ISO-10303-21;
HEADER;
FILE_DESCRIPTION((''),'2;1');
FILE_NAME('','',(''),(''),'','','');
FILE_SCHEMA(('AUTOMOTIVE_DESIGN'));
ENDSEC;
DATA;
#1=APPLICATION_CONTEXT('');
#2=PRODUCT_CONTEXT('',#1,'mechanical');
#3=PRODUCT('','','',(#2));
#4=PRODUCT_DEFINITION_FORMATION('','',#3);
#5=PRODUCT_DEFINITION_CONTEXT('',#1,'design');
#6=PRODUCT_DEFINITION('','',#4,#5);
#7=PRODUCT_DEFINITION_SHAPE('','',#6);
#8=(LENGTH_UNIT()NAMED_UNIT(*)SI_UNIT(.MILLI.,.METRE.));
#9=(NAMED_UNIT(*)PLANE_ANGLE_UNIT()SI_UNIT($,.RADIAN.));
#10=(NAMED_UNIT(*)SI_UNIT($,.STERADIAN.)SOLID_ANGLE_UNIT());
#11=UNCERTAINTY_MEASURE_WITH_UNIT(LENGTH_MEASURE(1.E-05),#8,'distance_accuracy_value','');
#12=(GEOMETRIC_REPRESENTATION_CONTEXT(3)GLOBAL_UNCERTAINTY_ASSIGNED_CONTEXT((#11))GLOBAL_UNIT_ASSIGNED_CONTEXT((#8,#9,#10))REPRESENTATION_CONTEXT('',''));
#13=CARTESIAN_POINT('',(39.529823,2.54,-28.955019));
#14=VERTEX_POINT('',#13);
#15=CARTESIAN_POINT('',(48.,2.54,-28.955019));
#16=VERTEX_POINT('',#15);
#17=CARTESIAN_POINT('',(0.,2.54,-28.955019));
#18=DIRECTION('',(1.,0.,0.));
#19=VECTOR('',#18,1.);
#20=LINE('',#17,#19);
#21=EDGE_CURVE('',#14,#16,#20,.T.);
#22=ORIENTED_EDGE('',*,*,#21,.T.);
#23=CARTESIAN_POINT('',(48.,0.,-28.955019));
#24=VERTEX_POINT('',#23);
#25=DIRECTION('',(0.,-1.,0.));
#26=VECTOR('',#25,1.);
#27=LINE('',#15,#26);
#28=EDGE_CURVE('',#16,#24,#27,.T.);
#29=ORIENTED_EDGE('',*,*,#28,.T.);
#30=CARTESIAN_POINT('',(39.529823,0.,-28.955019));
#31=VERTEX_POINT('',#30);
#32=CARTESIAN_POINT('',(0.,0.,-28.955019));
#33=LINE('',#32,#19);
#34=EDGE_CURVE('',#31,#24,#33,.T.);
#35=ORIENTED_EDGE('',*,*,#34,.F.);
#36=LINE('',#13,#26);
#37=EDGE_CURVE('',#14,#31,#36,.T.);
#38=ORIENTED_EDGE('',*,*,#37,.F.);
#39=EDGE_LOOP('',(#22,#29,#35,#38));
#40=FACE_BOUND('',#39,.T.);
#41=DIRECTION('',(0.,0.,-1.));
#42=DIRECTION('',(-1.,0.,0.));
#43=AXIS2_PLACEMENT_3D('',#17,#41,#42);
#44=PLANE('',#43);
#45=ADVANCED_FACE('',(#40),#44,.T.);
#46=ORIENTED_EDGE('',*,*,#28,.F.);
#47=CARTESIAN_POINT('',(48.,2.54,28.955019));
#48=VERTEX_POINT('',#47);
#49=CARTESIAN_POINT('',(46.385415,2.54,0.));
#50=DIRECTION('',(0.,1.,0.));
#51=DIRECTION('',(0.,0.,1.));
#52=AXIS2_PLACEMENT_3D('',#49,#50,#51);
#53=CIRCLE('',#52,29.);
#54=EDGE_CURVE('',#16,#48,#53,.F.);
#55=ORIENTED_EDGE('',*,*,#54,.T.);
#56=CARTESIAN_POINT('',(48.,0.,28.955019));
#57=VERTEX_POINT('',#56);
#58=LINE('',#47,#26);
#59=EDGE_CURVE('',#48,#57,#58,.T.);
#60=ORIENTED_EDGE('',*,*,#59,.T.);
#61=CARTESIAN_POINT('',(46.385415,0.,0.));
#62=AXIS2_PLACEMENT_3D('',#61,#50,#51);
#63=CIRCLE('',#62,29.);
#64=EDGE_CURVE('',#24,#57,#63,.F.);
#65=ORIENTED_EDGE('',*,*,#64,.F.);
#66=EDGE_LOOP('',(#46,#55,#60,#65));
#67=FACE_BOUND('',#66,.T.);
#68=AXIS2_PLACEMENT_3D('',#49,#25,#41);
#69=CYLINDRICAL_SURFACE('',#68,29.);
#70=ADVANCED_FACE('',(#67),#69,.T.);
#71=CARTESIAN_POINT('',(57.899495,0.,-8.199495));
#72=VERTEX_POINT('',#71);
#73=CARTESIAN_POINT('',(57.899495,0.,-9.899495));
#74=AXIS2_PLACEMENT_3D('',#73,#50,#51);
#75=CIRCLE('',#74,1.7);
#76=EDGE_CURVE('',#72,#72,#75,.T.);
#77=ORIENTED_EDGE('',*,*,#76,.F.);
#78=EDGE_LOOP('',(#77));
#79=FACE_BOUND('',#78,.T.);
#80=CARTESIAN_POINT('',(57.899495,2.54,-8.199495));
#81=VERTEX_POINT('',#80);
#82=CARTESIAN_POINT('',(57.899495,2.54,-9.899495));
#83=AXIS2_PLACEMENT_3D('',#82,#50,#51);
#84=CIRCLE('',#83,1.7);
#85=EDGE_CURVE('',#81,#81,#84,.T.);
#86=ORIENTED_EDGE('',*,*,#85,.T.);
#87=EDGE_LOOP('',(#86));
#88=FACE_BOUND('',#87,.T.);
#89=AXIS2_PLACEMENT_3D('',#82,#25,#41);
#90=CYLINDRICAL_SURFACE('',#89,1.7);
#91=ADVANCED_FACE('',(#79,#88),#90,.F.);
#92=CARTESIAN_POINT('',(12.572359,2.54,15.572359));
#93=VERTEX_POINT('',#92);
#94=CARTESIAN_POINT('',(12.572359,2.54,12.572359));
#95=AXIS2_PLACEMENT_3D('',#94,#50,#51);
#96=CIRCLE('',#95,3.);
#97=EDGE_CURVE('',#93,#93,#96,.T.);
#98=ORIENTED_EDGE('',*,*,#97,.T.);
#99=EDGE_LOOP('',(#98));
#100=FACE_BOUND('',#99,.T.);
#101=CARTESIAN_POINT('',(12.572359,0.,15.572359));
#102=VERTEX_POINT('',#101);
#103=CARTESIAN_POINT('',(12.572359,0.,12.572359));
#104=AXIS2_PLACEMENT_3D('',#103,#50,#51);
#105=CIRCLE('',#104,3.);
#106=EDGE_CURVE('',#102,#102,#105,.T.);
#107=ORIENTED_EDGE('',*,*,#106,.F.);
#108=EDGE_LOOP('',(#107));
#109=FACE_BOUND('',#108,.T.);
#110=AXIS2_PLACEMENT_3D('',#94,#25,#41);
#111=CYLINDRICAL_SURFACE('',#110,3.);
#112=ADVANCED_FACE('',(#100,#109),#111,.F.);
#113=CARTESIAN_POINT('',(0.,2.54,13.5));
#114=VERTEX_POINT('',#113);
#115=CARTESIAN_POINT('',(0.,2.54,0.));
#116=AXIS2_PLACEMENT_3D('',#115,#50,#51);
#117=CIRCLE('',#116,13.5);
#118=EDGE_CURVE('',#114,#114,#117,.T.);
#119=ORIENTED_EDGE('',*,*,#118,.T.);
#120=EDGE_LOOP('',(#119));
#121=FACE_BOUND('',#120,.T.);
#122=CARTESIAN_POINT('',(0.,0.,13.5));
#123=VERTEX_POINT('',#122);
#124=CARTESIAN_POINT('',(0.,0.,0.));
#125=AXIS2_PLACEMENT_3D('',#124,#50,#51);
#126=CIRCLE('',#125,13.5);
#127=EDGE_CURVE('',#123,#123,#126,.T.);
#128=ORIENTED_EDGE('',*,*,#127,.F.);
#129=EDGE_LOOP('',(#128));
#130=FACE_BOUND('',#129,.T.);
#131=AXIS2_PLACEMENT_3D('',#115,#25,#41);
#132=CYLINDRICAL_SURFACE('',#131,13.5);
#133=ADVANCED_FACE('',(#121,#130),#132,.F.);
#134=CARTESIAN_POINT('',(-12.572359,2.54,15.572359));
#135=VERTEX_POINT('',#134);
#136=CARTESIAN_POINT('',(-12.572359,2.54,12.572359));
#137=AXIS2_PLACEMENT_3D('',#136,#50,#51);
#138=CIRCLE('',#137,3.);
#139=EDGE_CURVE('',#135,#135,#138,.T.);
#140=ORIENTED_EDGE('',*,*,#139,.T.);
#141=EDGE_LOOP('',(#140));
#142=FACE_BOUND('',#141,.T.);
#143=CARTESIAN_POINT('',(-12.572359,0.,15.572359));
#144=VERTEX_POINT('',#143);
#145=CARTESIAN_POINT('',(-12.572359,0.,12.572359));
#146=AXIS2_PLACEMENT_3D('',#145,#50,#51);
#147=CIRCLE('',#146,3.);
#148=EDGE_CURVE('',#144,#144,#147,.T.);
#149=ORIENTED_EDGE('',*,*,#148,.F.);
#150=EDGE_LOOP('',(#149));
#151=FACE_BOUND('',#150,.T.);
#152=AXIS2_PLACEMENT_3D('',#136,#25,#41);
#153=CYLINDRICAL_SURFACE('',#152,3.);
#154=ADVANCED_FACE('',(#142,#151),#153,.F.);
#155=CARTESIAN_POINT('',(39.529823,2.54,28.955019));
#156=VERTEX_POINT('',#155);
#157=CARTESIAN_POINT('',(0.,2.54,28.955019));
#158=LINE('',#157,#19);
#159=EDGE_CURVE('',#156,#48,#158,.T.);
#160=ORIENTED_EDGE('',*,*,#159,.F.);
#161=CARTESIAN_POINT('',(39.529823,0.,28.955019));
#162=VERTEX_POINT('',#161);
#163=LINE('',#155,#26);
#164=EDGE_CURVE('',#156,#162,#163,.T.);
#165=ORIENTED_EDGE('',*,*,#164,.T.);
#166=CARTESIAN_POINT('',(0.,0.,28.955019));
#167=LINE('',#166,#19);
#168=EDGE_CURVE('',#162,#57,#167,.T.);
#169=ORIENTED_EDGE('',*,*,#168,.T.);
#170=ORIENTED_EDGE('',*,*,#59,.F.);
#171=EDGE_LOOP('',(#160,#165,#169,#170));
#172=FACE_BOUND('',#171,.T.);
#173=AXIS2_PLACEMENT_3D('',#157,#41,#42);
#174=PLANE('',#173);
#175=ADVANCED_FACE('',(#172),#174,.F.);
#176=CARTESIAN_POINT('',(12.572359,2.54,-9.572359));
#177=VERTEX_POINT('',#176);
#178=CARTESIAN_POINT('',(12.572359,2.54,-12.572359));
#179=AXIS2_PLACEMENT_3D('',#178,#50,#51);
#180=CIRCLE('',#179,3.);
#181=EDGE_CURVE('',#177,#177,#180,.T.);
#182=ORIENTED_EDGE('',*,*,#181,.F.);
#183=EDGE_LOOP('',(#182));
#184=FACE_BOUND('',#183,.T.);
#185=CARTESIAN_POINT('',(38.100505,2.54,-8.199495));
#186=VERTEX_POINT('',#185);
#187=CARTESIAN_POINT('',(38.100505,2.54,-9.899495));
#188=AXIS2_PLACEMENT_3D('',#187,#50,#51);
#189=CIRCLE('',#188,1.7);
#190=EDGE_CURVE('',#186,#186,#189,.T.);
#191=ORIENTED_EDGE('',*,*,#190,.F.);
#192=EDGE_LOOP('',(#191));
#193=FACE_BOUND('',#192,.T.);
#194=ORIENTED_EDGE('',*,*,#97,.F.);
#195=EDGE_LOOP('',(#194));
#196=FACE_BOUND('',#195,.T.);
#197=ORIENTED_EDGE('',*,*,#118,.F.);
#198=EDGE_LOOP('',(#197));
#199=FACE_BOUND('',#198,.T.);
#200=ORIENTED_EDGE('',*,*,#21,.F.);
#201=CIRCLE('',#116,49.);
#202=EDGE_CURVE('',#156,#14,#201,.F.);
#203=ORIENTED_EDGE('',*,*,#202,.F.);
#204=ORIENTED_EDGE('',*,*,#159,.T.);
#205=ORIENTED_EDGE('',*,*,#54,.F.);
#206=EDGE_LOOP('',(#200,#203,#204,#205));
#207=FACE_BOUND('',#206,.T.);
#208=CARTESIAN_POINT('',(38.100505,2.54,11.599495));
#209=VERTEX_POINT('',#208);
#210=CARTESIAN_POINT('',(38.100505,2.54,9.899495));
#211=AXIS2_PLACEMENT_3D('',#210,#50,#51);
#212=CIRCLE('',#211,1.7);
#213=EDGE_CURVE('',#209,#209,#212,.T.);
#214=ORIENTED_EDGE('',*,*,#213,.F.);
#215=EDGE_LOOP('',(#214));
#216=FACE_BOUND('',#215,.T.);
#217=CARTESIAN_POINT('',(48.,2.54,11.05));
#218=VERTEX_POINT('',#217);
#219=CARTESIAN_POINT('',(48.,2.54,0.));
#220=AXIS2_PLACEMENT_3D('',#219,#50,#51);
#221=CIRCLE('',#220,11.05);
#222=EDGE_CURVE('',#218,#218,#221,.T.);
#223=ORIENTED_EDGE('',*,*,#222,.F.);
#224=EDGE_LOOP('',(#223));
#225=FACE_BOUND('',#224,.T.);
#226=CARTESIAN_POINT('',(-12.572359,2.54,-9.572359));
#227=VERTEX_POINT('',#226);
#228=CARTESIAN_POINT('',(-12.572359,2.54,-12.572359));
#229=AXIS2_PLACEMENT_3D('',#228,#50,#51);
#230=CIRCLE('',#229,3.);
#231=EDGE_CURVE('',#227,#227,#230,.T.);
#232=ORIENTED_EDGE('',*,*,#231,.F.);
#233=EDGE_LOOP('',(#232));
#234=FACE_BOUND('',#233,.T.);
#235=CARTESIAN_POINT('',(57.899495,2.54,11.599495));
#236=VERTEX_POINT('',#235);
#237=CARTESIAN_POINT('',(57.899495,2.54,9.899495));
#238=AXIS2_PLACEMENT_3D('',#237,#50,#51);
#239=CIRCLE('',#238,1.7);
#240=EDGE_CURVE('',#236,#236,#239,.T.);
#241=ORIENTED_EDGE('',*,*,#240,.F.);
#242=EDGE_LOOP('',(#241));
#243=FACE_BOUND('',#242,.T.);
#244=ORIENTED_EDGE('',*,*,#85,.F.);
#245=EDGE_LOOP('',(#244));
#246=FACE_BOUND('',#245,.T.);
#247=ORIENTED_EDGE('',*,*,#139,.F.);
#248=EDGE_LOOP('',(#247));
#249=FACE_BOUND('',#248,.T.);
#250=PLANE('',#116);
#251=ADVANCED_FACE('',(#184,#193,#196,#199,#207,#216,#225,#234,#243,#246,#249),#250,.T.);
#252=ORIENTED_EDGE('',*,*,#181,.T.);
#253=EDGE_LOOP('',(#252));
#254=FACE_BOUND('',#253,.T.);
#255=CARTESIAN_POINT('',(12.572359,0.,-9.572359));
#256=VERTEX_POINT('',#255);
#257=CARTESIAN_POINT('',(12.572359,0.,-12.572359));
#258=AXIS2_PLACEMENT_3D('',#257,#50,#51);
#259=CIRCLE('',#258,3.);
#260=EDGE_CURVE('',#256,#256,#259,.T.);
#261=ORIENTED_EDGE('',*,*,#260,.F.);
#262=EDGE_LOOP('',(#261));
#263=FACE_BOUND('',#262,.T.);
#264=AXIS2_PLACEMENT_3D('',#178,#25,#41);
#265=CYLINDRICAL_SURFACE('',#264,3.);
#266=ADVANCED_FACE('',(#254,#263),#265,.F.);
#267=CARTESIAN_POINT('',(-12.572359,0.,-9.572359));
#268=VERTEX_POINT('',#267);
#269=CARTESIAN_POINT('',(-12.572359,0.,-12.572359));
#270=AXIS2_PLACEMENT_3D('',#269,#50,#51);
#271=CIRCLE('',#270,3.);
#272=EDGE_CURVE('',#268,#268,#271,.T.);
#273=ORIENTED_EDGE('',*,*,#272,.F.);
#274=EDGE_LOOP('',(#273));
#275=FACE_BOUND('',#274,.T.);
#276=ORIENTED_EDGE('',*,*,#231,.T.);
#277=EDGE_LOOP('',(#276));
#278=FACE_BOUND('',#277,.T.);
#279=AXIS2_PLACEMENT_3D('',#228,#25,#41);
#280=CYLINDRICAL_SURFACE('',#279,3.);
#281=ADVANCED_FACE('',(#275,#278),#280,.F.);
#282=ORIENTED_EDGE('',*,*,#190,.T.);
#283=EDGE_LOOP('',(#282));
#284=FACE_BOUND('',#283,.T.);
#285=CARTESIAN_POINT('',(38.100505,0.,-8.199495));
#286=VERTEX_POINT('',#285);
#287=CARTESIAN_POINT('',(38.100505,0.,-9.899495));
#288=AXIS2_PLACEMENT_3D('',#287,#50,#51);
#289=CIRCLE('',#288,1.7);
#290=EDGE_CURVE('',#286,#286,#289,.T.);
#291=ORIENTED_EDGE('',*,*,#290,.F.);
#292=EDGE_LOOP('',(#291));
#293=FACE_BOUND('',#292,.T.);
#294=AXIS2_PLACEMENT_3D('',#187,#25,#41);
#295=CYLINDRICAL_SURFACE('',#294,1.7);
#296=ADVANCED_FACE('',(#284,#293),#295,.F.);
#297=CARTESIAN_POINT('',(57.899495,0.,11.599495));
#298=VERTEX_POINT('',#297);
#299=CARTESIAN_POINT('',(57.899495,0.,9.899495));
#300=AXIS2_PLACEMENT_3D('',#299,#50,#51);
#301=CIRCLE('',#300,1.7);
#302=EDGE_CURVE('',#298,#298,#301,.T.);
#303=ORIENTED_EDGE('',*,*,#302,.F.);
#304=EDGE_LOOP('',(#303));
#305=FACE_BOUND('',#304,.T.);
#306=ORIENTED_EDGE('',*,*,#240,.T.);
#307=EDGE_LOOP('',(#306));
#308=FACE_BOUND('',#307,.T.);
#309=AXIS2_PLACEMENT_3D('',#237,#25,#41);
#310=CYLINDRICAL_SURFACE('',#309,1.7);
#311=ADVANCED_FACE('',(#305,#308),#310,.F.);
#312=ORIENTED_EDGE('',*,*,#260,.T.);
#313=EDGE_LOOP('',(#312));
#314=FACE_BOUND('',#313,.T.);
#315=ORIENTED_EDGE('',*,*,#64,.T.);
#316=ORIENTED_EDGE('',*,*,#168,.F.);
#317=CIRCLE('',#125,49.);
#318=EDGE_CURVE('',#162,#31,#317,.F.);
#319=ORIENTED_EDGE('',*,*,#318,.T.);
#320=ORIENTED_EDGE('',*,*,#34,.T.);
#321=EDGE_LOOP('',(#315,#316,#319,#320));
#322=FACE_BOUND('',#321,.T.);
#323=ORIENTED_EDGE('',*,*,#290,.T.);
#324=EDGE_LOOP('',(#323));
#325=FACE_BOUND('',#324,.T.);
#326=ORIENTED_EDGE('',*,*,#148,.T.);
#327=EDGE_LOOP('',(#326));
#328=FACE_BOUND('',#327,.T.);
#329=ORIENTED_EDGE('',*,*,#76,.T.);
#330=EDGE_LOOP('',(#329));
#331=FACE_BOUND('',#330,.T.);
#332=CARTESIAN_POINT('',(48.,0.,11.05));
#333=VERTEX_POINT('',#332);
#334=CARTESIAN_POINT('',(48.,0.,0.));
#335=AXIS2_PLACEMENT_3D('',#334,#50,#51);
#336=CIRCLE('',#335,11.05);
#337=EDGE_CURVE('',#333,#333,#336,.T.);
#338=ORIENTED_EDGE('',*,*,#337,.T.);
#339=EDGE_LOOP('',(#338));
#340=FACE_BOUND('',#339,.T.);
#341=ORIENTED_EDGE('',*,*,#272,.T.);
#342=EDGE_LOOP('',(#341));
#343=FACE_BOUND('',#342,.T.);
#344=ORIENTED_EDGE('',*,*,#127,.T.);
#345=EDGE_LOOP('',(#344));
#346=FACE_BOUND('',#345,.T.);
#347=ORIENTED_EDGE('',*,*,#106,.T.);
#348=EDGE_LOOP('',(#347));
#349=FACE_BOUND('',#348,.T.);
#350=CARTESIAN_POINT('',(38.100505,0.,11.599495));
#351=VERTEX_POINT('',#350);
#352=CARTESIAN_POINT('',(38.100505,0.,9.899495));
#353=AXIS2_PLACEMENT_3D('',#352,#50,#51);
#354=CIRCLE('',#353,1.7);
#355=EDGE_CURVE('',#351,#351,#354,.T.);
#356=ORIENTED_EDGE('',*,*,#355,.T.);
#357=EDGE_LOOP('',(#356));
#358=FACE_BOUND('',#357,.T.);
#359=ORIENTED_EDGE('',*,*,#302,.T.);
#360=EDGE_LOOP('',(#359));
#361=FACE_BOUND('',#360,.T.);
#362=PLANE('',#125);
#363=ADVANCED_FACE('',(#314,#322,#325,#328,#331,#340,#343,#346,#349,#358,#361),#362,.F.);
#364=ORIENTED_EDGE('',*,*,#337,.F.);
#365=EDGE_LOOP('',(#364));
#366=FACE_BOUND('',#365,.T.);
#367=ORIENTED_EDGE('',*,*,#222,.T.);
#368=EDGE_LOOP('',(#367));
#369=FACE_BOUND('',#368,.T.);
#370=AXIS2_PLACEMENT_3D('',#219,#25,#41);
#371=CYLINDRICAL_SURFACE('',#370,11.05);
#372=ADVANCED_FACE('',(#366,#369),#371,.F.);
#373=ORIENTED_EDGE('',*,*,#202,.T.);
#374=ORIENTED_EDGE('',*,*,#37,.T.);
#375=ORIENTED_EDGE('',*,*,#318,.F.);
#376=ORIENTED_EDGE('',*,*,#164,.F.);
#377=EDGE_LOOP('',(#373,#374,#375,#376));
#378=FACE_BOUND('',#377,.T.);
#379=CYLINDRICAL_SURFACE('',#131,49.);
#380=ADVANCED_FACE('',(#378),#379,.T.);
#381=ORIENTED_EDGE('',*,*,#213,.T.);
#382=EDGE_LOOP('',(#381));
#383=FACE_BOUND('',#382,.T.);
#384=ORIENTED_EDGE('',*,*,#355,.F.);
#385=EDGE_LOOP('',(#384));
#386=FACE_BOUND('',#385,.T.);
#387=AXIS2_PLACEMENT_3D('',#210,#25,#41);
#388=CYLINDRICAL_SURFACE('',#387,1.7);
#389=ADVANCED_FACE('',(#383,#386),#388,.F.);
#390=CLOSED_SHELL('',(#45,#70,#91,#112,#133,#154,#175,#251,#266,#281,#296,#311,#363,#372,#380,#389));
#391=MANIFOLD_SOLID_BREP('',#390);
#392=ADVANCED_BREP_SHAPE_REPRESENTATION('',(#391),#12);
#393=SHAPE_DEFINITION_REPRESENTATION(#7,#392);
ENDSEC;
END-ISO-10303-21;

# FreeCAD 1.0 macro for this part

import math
import FreeCAD as App
import Part
import Sketcher

doc = App.newDocument("Part")
body = doc.addObject("PartDesign::Body", "Body")

# Sketch on XZ plane
sketch1 = doc.addObject("Sketcher::SketchObject", "Sketch")
body.addObject(sketch1)
sketch1.AttachmentSupport = (doc.XZ_Plane, [""])
sketch1.MapMode = "FlatFace"
sketch1.addGeometry([
    Part.ArcOfCircle(Part.Circle(App.Vector(0, 0, 0), App.Vector(0, 0, 1), 49), math.radians(-90), math.radians(-36)),  # 0
    Part.ArcOfCircle(Part.Circle(App.Vector(0, 0, 0), App.Vector(0, 0, 1), 49), math.radians(90), math.radians(270)),  # 1
    Part.ArcOfCircle(Part.Circle(App.Vector(0, 0, 0), App.Vector(0, 0, 1), 49), math.radians(36), math.radians(90)),  # 2
    Part.LineSegment(App.Vector(39.5, 29, 0), App.Vector(48, 29, 0)),  # 3
    Part.ArcOfCircle(Part.Circle(App.Vector(46.4, 0, 0), App.Vector(0, 0, 1), 29), math.radians(-87), math.radians(87)),  # 4
    Part.LineSegment(App.Vector(48, -29, 0), App.Vector(39.5, -29, 0)),  # 5
    Part.Circle(App.Vector(57.9, 9.9, 0), App.Vector(0, 0, 1), 1.7),  # 6
    Part.Circle(App.Vector(38.1, 9.9, 0), App.Vector(0, 0, 1), 1.7),  # 7
    Part.Circle(App.Vector(12.6, 12.6, 0), App.Vector(0, 0, 1), 3),  # 8
    Part.Circle(App.Vector(-12.6, 12.6, 0), App.Vector(0, 0, 1), 3),  # 9
    Part.Circle(App.Vector(48, 0, 0), App.Vector(0, 0, 1), 11.1),  # 10
    Part.Circle(App.Vector(57.9, -9.9, 0), App.Vector(0, 0, 1), 1.7),  # 11
    Part.Circle(App.Vector(38.1, -9.9, 0), App.Vector(0, 0, 1), 1.7),  # 12
    Part.Circle(App.Vector(0, 0, 0), App.Vector(0, 0, 1), 13.5),  # 13
    Part.Circle(App.Vector(12.6, -12.6, 0), App.Vector(0, 0, 1), 3),  # 14
    Part.Circle(App.Vector(-12.6, -12.6, 0), App.Vector(0, 0, 1), 3),  # 15
], False)
sketch1.addConstraint([
    Sketcher.Constraint("Tangent", 0, 1, 1, 2),
    Sketcher.Constraint("Tangent", 1, 1, 2, 2),
    Sketcher.Constraint("Coincident", 2, 1, 3, 1),
    Sketcher.Constraint("Coincident", 3, 2, 4, 2),
    Sketcher.Constraint("Coincident", 4, 1, 5, 1),
    Sketcher.Constraint("Coincident", 5, 2, 0, 2),
    Sketcher.Constraint("Horizontal", 3),
    Sketcher.Constraint("Horizontal", 5),
    Sketcher.Constraint("Coincident", 0, 3, -1, 1),
    Sketcher.Constraint("Coincident", 13, 3, -1, 1),
    Sketcher.Constraint("Equal", 0, 1),
    Sketcher.Constraint("Equal", 1, 2),
    Sketcher.Constraint("Equal", 6, 7),
    Sketcher.Constraint("Equal", 8, 9),
    Sketcher.Constraint("Equal", 7, 11),
    Sketcher.Constraint("Equal", 11, 12),
    Sketcher.Constraint("Equal", 9, 14),
    Sketcher.Constraint("Equal", 14, 15),
    Sketcher.Constraint("Symmetric", 9, 3, 14, 3, -1, 1),
    Sketcher.Constraint("Symmetric", 8, 3, 15, 3, -1, 1),
    Sketcher.Constraint("Symmetric", 8, 3, 9, 3, -2),
    Sketcher.Constraint("Symmetric", 6, 3, 11, 3, -1),
    Sketcher.Constraint("Symmetric", 7, 3, 12, 3, -1),
    Sketcher.Constraint("Symmetric", 3, 2, 4, 1, -1),
    Sketcher.Constraint("PointOnObject", 10, 3, -1),
    Sketcher.Constraint("PointOnObject", 0, 1, -2),
    Sketcher.Constraint("PointOnObject", 1, 1, -2),
    Sketcher.Constraint("Horizontal", 6, 3, 7, 3),
    Sketcher.Constraint("Vertical", 10, 3, 3, 2),
    Sketcher.Constraint("Diameter", 8, 6.0),
    Sketcher.Constraint("Diameter", 13, 27.0),
    Sketcher.Constraint("Radius", 0, 49.0),
    Sketcher.Constraint("Radius", 4, 29.0),
    Sketcher.Constraint("Diameter", 6, 3.4),
    Sketcher.Constraint("Diameter", 10, 22.1),
    Sketcher.Constraint("DistanceX", -1, 1, 10, 3, 48.0),
    Sketcher.Constraint("DistanceX", 3, 1, 3, 2, 8.470177),
    Sketcher.Constraint("DistanceX", -1, 1, 8, 3, 12.572359),
    Sketcher.Constraint("DistanceY", -1, 1, 8, 3, 12.572359),
    Sketcher.Constraint("DistanceX", 4, 3, 6, 3, 11.51408),
    Sketcher.Constraint("DistanceX", 7, 3, 4, 3, 8.28491),
    Sketcher.Constraint("DistanceY", 11, 3, 6, 3, 19.79899),
])
pad1 = doc.addObject("PartDesign::Pad", "Pad")
body.addObject(pad1)
pad1.Profile = sketch1
pad1.Length = 2.54
pad1.Reversed = True

doc.recompute()
